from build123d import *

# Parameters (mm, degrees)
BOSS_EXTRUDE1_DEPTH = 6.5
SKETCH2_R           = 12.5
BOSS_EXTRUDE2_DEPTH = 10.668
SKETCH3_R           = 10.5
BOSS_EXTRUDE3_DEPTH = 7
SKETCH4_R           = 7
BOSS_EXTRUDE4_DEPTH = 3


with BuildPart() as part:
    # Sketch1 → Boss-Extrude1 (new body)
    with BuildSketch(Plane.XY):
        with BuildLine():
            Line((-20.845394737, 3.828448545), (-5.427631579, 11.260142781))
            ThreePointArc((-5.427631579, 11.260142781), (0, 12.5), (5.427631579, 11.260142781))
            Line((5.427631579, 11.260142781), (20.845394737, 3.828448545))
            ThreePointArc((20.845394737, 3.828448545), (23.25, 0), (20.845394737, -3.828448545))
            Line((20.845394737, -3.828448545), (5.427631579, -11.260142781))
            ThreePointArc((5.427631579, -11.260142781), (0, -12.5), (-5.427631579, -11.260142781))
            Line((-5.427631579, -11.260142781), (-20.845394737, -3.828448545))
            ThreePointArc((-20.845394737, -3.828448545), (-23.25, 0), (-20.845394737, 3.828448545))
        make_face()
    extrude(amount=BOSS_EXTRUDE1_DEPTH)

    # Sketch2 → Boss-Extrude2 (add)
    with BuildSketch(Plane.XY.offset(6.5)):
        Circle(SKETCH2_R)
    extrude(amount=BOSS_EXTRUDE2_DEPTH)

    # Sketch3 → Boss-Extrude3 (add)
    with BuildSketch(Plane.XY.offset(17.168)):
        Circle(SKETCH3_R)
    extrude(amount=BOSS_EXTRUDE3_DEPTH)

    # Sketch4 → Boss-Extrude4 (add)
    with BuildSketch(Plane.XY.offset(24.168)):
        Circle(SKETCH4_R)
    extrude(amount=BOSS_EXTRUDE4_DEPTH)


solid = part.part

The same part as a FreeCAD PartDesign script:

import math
import FreeCAD as App
import Part
import Sketcher
from FreeCAD import Vector
Q = App.Units.Quantity

doc = App.newDocument("Part")
body = doc.addObject("PartDesign::Body", "Body")

# Sketch on XY plane
sketch1 = body.newObject("Sketcher::SketchObject", "Sketch")
sketch1.AttachmentSupport = (doc.getObject("XY_Plane"), [""])
sketch1.MapMode = "FlatFace"
sketch1.addGeometry([
    Part.LineSegment(Vector(-5.427632, 11.260143, 0), Vector(-20.845395, 3.828449, 0)),  # 0
    Part.ArcOfCircle(Part.Circle(Vector(-19, 0, 0), Vector(0, 0, 1), 4.25), math.radians(115.735069), math.radians(244.264931)),  # 1
    Part.LineSegment(Vector(-20.845395, -3.828449, 0), Vector(-5.427632, -11.260143, 0)),  # 2
    Part.ArcOfCircle(Part.Circle(Vector(0, 0, 0), Vector(0, 0, 1), 12.5), math.radians(-115.735069), math.radians(-64.264931)),  # 3
    Part.LineSegment(Vector(5.427632, -11.260143, 0), Vector(20.845395, -3.828449, 0)),  # 4
    Part.ArcOfCircle(Part.Circle(Vector(19, 0, 0), Vector(0, 0, 1), 4.25), math.radians(-64.264931), math.radians(64.264931)),  # 5
    Part.LineSegment(Vector(20.845395, 3.828449, 0), Vector(5.427632, 11.260143, 0)),  # 6
    Part.ArcOfCircle(Part.Circle(Vector(0, 0, 0), Vector(0, 0, 1), 12.5), math.radians(64.264931), math.radians(115.735069)),  # 7
], False)
sketch1.addConstraint([
    Sketcher.Constraint("Tangent", 0, 2, 1, 1),
    Sketcher.Constraint("Tangent", 1, 2, 2, 1),
    Sketcher.Constraint("Tangent", 2, 2, 3, 1),
    Sketcher.Constraint("Tangent", 3, 2, 4, 1),
    Sketcher.Constraint("Tangent", 4, 2, 5, 1),
    Sketcher.Constraint("Tangent", 5, 2, 6, 1),
    Sketcher.Constraint("Tangent", 6, 2, 7, 1),
    Sketcher.Constraint("Tangent", 7, 2, 0, 1),
    Sketcher.Constraint("Coincident", 3, 3, -1, 1),
    Sketcher.Constraint("Coincident", 7, 3, -1, 1),
    Sketcher.Constraint("Equal", 1, 5),
    Sketcher.Constraint("Equal", 3, 7),
    Sketcher.Constraint("Symmetric", 1, 3, 5, 3, -1, 1),
    Sketcher.Constraint("PointOnObject", 1, 3, -1),
    Sketcher.Constraint("Radius", 3, Q("12.5 mm")),
    Sketcher.Constraint("Radius", 1, Q("4.25 mm")),
    Sketcher.Constraint("DistanceX", 1, 3, -1, 1, Q("19 mm")),
])
pad1 = body.newObject("PartDesign::Pad", "Pad")
pad1.Profile = sketch1
pad1.Length = 6.5

# Sketch on XY plane
sketch2 = body.newObject("Sketcher::SketchObject", "Sketch001")
sketch2.AttachmentSupport = (doc.getObject("XY_Plane"), [""])
sketch2.MapMode = "FlatFace"
sketch2.AttachmentOffset = App.Placement(Vector(0, 0, 6.5), App.Rotation())
sketch2.addGeometry(Part.Circle(Vector(0, 0, 0), Vector(0, 0, 1), 12.5), False)
sketch2.addConstraint([
    Sketcher.Constraint("Coincident", 0, 3, -1, 1),
    Sketcher.Constraint("Diameter", 0, Q("25 mm")),
])
pad2 = body.newObject("PartDesign::Pad", "Pad001")
pad2.Profile = sketch2
pad2.Length = 10.668

# Sketch on XY plane
sketch3 = body.newObject("Sketcher::SketchObject", "Sketch002")
sketch3.AttachmentSupport = (doc.getObject("XY_Plane"), [""])
sketch3.MapMode = "FlatFace"
sketch3.AttachmentOffset = App.Placement(Vector(0, 0, 17.168), App.Rotation())
sketch3.addGeometry(Part.Circle(Vector(0, 0, 0), Vector(0, 0, 1), 10.5), False)
sketch3.addConstraint([
    Sketcher.Constraint("Coincident", 0, 3, -1, 1),
    Sketcher.Constraint("Diameter", 0, Q("21 mm")),
])
pad3 = body.newObject("PartDesign::Pad", "Pad002")
pad3.Profile = sketch3
pad3.Length = 7

# Sketch on XY plane
sketch4 = body.newObject("Sketcher::SketchObject", "Sketch003")
sketch4.AttachmentSupport = (doc.getObject("XY_Plane"), [""])
sketch4.MapMode = "FlatFace"
sketch4.AttachmentOffset = App.Placement(Vector(0, 0, 24.168), App.Rotation())
sketch4.addGeometry(Part.Circle(Vector(0, 0, 0), Vector(0, 0, 1), 7), False)
sketch4.addConstraint([
    Sketcher.Constraint("Coincident", 0, 3, -1, 1),
    Sketcher.Constraint("Diameter", 0, Q("14 mm")),
])
pad4 = body.newObject("PartDesign::Pad", "Pad003")
pad4.Profile = sketch4
pad4.Length = 3

doc.recompute()
